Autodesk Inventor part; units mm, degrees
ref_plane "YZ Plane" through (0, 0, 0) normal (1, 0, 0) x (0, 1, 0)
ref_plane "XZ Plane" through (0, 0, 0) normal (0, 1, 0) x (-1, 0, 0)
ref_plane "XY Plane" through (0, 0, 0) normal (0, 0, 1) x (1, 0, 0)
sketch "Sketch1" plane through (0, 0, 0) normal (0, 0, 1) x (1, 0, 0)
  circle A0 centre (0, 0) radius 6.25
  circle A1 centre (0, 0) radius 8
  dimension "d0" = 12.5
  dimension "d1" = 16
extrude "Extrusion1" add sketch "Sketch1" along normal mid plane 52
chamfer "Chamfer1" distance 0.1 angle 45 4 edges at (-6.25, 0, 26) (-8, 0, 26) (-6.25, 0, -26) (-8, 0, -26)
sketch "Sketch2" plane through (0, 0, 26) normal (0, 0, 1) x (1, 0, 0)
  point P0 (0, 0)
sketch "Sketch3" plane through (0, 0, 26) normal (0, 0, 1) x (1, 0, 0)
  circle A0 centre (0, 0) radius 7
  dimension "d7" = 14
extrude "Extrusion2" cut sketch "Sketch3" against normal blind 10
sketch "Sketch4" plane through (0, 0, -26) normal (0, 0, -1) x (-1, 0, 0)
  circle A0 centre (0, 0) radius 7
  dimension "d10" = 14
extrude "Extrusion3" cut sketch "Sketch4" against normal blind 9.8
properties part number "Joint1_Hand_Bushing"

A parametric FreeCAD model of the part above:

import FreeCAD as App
import Part
import Sketcher


def edges_at(feature, points):
    """Names of the edges that pass closest to the given points."""
    edges = feature.Shape.Edges
    near = lambda p: min(range(len(edges)), key=lambda i: edges[i].distToShape(Part.Vertex(*p))[0])
    return sorted({f"Edge{near(p) + 1}" for p in points})

doc = App.newDocument("Part")
body = doc.addObject("PartDesign::Body", "Body")

sketch1 = body.newObject("Sketcher::SketchObject", "Sketch")
sketch1.AttachmentSupport = (doc.getObject("XY_Plane"), [""])
sketch1.MapMode = "FlatFace"
sketch1.addGeometry([
    Part.Circle(App.Vector(0, 0, 0), App.Vector(0, 0, 1), 8),
    Part.Circle(App.Vector(0, 0, 0), App.Vector(0, 0, 1), 6.25),
], False)
sketch1.addConstraint([
    Sketcher.Constraint("Coincident", 0, 3, -1, 1),
    Sketcher.Constraint("Coincident", 1, 3, -1, 1),
    Sketcher.Constraint("Diameter", 0, 16.0),
    Sketcher.Constraint("Diameter", 1, 12.5),
])
pad1 = body.newObject("PartDesign::Pad", "Pad")
pad1.Profile = sketch1
pad1.Length = 52
pad1.Midplane = True
doc.recompute()

chamfer = body.newObject("PartDesign::Chamfer", "Chamfer")
chamfer.Base = (pad1, edges_at(pad1, [
    (-6.25, 0, 26),
    (-8, 0, 26),
    (-6.25, 0, -26),
    (-8, 0, -26),
]))
chamfer.Size = 0.1

sketch2 = body.newObject("Sketcher::SketchObject", "Sketch001")
sketch2.AttachmentSupport = (doc.getObject("XY_Plane"), [""])
sketch2.MapMode = "FlatFace"
sketch2.AttachmentOffset = App.Placement(App.Vector(0, 0, 26), App.Rotation())
sketch2.addGeometry(Part.Circle(App.Vector(0, 0, 0), App.Vector(0, 0, 1), 7), False)
sketch2.addConstraint([
    Sketcher.Constraint("Coincident", 0, 3, -1, 1),
    Sketcher.Constraint("Diameter", 0, 14.0),
])
pocket1 = body.newObject("PartDesign::Pocket", "Pocket")
pocket1.Profile = sketch2
pocket1.Length = 10

sketch3 = body.newObject("Sketcher::SketchObject", "Sketch002")
sketch3.AttachmentSupport = (doc.getObject("XY_Plane"), [""])
sketch3.MapMode = "FlatFace"
sketch3.AttachmentOffset = App.Placement(App.Vector(0, 0, -26), App.Rotation())
sketch3.addGeometry(Part.Circle(App.Vector(0, 0, 0), App.Vector(0, 0, 1), 7), False)
sketch3.addConstraint([
    Sketcher.Constraint("Coincident", 0, 3, -1, 1),
    Sketcher.Constraint("Diameter", 0, 14.0),
])
pocket2 = body.newObject("PartDesign::Pocket", "Pocket001")
pocket2.Profile = sketch3
pocket2.Length = 9.8
pocket2.Reversed = True

doc.recompute()
